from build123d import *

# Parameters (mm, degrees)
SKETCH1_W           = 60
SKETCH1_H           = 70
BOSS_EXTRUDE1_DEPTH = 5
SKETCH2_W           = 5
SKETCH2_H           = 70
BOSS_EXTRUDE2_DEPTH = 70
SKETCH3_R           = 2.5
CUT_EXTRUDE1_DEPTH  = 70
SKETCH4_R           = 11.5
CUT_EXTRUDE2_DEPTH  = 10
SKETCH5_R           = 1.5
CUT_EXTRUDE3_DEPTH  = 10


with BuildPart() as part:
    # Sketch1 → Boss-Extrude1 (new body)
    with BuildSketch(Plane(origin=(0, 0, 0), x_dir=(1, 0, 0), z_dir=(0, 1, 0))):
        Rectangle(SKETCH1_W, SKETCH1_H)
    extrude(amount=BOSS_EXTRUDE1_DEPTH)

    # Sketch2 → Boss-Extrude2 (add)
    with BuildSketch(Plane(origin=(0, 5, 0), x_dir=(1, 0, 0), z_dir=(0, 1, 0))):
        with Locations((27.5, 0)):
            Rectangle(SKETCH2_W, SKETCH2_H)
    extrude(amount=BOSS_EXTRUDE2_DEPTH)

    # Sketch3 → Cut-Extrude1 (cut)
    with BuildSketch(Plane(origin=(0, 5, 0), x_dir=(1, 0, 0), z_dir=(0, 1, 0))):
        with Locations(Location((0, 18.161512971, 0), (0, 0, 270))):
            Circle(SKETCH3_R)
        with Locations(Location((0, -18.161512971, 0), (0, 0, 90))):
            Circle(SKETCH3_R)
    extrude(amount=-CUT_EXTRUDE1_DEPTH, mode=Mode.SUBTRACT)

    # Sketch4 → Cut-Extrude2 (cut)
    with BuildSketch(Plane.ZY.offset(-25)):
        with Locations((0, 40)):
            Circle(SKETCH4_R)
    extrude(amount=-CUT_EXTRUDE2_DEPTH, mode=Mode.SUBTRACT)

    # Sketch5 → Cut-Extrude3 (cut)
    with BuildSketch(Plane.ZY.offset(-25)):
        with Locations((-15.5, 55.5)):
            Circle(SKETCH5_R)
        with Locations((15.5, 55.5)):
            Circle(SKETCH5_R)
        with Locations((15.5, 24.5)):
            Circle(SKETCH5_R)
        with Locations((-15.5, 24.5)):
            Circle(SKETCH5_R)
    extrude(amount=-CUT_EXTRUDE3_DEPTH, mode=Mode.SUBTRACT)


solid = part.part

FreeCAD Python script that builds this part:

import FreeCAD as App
import Part
import Sketcher
from FreeCAD import Vector


def add_polygon(sketch, points):
    """Adds a closed chain of lines whose ends are joined by coincident constraints."""
    first, n = sketch.GeometryCount, len(points)
    for a, b in zip(points, points[1:] + points[:1]):
        sketch.addGeometry(Part.LineSegment(App.Vector(*a, 0), App.Vector(*b, 0)), False)
    for i in range(n):
        sketch.addConstraint(Sketcher.Constraint("Coincident", first + i, 2, first + (i + 1) % n, 1))

doc = App.newDocument("Part")
params = doc.addObject("Spreadsheet::Sheet", "Params")
for row, (alias, value) in enumerate([
    ("sketch1_width", "60 mm"),
    ("sketch1_height", "70 mm"),
    ("pad1_length", "5 mm"),
    ("sketch2_width", "5 mm"),
    ("sketch2_height", "70 mm"),
    ("pad2_length", "70 mm"),
    ("sketch3_diameter", "5 mm"),
    ("pocket1_length", "70 mm"),
    ("sketch4_diameter", "23 mm"),
    ("pocket2_length", "10 mm"),
    ("sketch5_diameter", "3 mm"),
    ("pocket3_length", "10 mm"),
], start=1):
    params.set(f"A{row}", alias)
    params.set(f"B{row}", "=" + value)
    params.setAlias(f"B{row}", alias)

body = doc.addObject("PartDesign::Body", "Body")

sketch1 = doc.addObject("Sketcher::SketchObject", "Sketch")
body.addObject(sketch1)
sketch1.AttachmentSupport = (doc.XZ_Plane, [""])
sketch1.MapMode = "FlatFace"
add_polygon(sketch1, [(-30, -35), (-30, 35), (30, 35), (30, -35)])
sketch1.addConstraint([
    Sketcher.Constraint("Vertical", 0),
    Sketcher.Constraint("Horizontal", 1),
    Sketcher.Constraint("Vertical", 2),
    Sketcher.Constraint("Horizontal", 3),
    Sketcher.Constraint("Symmetric", 0, 2, 2, 2, -1, 1),
    Sketcher.Constraint("DistanceX", 1, 1, 1, 2, 60.0),
    Sketcher.Constraint("DistanceY", 0, 1, 0, 2, 70.0),
])
sketch1.setExpression("Constraints[9]", "Params.sketch1_width")
sketch1.setExpression("Constraints[10]", "Params.sketch1_height")
pad1 = doc.addObject("PartDesign::Pad", "Pad")
body.addObject(pad1)
pad1.Profile = sketch1
pad1.setExpression("Length", "Params.pad1_length")
pad1.Reversed = True

sketch2 = doc.addObject("Sketcher::SketchObject", "Sketch001")
body.addObject(sketch2)
sketch2.AttachmentSupport = (doc.XZ_Plane, [""])
sketch2.MapMode = "FlatFace"
sketch2.AttachmentOffset = App.Placement(Vector(0, 0, -5), App.Rotation())
add_polygon(sketch2, [(25, -35), (25, 35), (30, 35), (30, -35)])
sketch2.addConstraint([
    Sketcher.Constraint("Vertical", 0),
    Sketcher.Constraint("Horizontal", 1),
    Sketcher.Constraint("Vertical", 2),
    Sketcher.Constraint("Horizontal", 3),
    Sketcher.Constraint("DistanceX", 1, 1, 1, 2, 5.0),
    Sketcher.Constraint("DistanceY", 0, 1, 0, 2, 70.0),
    Sketcher.Constraint("DistanceX", -1, 1, 0, 2, 25.0),
    Sketcher.Constraint("DistanceY", -1, 1, 0, 2, 35.0),
])
sketch2.setExpression("Constraints[8]", "Params.sketch2_width")
sketch2.setExpression("Constraints[9]", "Params.sketch2_height")
pad2 = doc.addObject("PartDesign::Pad", "Pad001")
body.addObject(pad2)
pad2.Profile = sketch2
pad2.setExpression("Length", "Params.pad2_length")
pad2.Reversed = True

sketch3 = doc.addObject("Sketcher::SketchObject", "Sketch002")
body.addObject(sketch3)
sketch3.AttachmentSupport = (doc.XZ_Plane, [""])
sketch3.MapMode = "FlatFace"
sketch3.AttachmentOffset = App.Placement(Vector(0, 0, -5), App.Rotation())
sketch3.addGeometry([
    Part.Circle(Vector(0, -18.2, 0), Vector(0, 0, 1), 2.5),
    Part.Circle(Vector(0, 18.2, 0), Vector(0, 0, 1), 2.5),
], False)
sketch3.addConstraint([
    Sketcher.Constraint("Equal", 0, 1),
    Sketcher.Constraint("Symmetric", 0, 3, 1, 3, -1, 1),
    Sketcher.Constraint("PointOnObject", 0, 3, -2),
    Sketcher.Constraint("Diameter", 0, 5.0),
    Sketcher.Constraint("DistanceY", 0, 3, -1, 1, 18.161513),
])
sketch3.setExpression("Constraints[3]", "Params.sketch3_diameter")
pocket1 = doc.addObject("PartDesign::Pocket", "Pocket")
body.addObject(pocket1)
pocket1.Profile = sketch3
pocket1.setExpression("Length", "Params.pocket1_length")
pocket1.Reversed = True

sketch4 = doc.addObject("Sketcher::SketchObject", "Sketch003")
body.addObject(sketch4)
sketch4.AttachmentSupport = (doc.YZ_Plane, [""])
sketch4.MapMode = "FlatFace"
sketch4.AttachmentOffset = App.Placement(Vector(0, 0, 25), App.Rotation())
sketch4.addGeometry(Part.Circle(Vector(40, 0, 0), Vector(0, 0, 1), 12), False)
sketch4.addConstraint([
    Sketcher.Constraint("PointOnObject", 0, 3, -1),
    Sketcher.Constraint("Diameter", 0, 23.0),
    Sketcher.Constraint("DistanceX", -1, 1, 0, 3, 40.0),
])
sketch4.setExpression("Constraints[1]", "Params.sketch4_diameter")
pocket2 = doc.addObject("PartDesign::Pocket", "Pocket001")
body.addObject(pocket2)
pocket2.Profile = sketch4
pocket2.setExpression("Length", "Params.pocket2_length")
pocket2.Reversed = True

sketch5 = doc.addObject("Sketcher::SketchObject", "Sketch004")
body.addObject(sketch5)
sketch5.AttachmentSupport = (doc.YZ_Plane, [""])
sketch5.MapMode = "FlatFace"
sketch5.AttachmentOffset = App.Placement(Vector(0, 0, 25), App.Rotation())
sketch5.addGeometry([
    Part.Circle(Vector(55.5, -15.5, 0), Vector(0, 0, 1), 1.5),
    Part.Circle(Vector(55.5, 15.5, 0), Vector(0, 0, 1), 1.5),
    Part.Circle(Vector(24.5, 15.5, 0), Vector(0, 0, 1), 1.5),
    Part.Circle(Vector(24.5, -15.5, 0), Vector(0, 0, 1), 1.5),
], False)
sketch5.addConstraint([
    Sketcher.Constraint("Equal", 0, 1),
    Sketcher.Constraint("Equal", 1, 2),
    Sketcher.Constraint("Equal", 2, 3),
    Sketcher.Constraint("Symmetric", 0, 3, 1, 3, -1),
    Sketcher.Constraint("Symmetric", 2, 3, 3, 3, -1),
    Sketcher.Constraint("Horizontal", 1, 3, 2, 3),
    Sketcher.Constraint("Diameter", 0, 3.0),
    Sketcher.Constraint("DistanceY", 0, 3, 1, 3, 31.0),
    Sketcher.Constraint("DistanceX", 2, 3, 1, 3, 31.0),
    Sketcher.Constraint("DistanceX", -1, 1, 0, 3, 55.5),
])
sketch5.setExpression("Constraints[6]", "Params.sketch5_diameter")
pocket3 = doc.addObject("PartDesign::Pocket", "Pocket002")
body.addObject(pocket3)
pocket3.Profile = sketch5
pocket3.setExpression("Length", "Params.pocket3_length")
pocket3.Reversed = True

doc.recompute()
